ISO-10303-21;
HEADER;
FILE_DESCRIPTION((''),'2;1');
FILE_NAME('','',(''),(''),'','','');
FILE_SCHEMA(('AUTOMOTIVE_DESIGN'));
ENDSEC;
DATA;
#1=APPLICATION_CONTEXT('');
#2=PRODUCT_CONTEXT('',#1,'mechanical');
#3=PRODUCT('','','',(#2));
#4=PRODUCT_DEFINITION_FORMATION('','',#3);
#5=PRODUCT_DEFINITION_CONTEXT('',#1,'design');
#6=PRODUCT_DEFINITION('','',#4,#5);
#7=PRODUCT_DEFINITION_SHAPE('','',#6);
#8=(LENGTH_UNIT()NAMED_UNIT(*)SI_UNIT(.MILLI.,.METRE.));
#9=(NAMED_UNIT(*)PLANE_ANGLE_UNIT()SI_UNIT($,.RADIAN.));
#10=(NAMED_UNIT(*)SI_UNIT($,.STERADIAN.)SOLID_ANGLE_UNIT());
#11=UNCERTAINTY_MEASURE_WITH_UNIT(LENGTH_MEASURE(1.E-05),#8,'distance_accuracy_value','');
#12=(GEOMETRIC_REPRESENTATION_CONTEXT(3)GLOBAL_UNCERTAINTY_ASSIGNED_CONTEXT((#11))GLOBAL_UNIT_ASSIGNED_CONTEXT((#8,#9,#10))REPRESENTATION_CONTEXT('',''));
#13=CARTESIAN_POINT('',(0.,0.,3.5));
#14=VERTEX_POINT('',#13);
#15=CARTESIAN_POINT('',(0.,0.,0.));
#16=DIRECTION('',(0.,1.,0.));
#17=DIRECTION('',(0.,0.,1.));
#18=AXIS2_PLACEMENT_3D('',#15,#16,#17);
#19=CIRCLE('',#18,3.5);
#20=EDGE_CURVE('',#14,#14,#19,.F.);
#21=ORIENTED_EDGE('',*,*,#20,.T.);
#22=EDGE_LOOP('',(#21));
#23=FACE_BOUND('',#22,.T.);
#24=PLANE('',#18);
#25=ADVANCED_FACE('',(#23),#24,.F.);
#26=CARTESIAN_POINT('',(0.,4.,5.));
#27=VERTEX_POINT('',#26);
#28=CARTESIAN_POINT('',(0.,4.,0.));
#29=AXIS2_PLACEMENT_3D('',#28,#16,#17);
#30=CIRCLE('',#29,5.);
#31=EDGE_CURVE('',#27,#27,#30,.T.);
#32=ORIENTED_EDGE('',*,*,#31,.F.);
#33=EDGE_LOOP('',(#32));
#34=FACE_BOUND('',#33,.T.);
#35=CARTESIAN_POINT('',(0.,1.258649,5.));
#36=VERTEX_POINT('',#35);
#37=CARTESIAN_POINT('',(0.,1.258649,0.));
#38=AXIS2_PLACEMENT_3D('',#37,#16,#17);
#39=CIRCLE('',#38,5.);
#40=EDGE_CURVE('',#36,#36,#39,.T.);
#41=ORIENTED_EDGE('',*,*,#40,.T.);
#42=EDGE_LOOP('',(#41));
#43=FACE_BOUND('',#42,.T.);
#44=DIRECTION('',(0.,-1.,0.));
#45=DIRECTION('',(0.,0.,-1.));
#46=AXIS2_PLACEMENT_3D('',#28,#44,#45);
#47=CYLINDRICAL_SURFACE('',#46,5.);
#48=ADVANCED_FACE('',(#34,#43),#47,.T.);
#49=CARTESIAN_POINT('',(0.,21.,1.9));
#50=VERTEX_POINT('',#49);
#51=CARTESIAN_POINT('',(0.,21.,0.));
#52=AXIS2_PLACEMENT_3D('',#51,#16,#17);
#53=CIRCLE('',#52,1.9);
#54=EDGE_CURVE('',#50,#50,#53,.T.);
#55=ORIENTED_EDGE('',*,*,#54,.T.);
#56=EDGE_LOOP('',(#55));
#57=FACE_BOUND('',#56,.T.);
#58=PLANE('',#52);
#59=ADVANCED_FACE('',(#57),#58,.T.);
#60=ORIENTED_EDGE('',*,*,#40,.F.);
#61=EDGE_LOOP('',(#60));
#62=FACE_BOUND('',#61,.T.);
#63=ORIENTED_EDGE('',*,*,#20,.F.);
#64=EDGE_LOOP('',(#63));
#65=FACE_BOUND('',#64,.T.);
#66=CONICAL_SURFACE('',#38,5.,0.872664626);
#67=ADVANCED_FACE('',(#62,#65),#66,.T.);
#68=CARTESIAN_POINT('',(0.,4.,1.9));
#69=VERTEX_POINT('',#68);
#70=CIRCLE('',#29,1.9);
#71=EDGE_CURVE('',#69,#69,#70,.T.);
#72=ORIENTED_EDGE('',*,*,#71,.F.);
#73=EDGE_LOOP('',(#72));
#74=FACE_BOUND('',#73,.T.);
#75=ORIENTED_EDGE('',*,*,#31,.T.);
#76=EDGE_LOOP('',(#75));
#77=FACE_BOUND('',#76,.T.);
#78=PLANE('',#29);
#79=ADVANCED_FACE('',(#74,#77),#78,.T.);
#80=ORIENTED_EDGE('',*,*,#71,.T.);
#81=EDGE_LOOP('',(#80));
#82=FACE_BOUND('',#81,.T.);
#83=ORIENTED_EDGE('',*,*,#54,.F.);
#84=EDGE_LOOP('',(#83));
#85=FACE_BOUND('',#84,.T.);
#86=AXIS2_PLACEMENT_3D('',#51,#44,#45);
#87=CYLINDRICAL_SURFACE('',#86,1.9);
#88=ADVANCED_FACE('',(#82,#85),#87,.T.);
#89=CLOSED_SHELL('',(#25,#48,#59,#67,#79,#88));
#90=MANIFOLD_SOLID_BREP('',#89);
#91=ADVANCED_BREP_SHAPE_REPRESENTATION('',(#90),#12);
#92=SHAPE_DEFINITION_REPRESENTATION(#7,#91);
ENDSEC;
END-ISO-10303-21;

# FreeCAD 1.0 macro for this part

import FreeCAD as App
import Part
import Sketcher
Q = App.Units.Quantity


def edges_at(feature, points):
    """Names of the edges that pass closest to the given points."""
    edges = feature.Shape.Edges
    near = lambda p: min(range(len(edges)), key=lambda i: edges[i].distToShape(Part.Vertex(*p))[0])
    return sorted({f"Edge{near(p) + 1}" for p in points})

doc = App.newDocument("Part")
params = doc.addObject("Spreadsheet::Sheet", "Params")
for row, (alias, value) in enumerate([
    ("sketch1_diameter", "10 mm"),
    ("pad1_length", "4 mm"),
    ("sketch2_diameter", "3.8 mm"),
    ("pad2_length", "17 mm"),
    ("chamfer_size", "1.5 mm"),
    ("chamfer_size2", "1.258649 mm"),
], start=1):
    params.set(f"A{row}", alias)
    params.set(f"B{row}", "=" + value)
    params.setAlias(f"B{row}", alias)

body = doc.addObject("PartDesign::Body", "Body")

sketch1 = body.newObject("Sketcher::SketchObject", "Sketch")
sketch1.AttachmentSupport = (doc.getObject("XZ_Plane"), [""])
sketch1.MapMode = "FlatFace"
sketch1.addGeometry(Part.Circle(App.Vector(0, 0, 0), App.Vector(0, 0, 1), 5), False)
sketch1.addConstraint(Sketcher.Constraint("Coincident", 0, 3, -1, 1))
sketch1.addConstraint(Sketcher.Constraint("Diameter", 0, Q("10 mm")))
sketch1.setExpression("Constraints[1]", "Params.sketch1_diameter")
pad1 = body.newObject("PartDesign::Pad", "Pad")
pad1.Profile = sketch1
pad1.setExpression("Length", "Params.pad1_length")
pad1.Reversed = True

sketch2 = body.newObject("Sketcher::SketchObject", "Sketch001")
sketch2.AttachmentSupport = (doc.getObject("XZ_Plane"), [""])
sketch2.MapMode = "FlatFace"
sketch2.AttachmentOffset = App.Placement(App.Vector(0, 0, -4), App.Rotation())
sketch2.addGeometry(Part.Circle(App.Vector(0, 0, 0), App.Vector(0, 0, 1), 1.9), False)
sketch2.addConstraint(Sketcher.Constraint("Coincident", 0, 3, -1, 1))
sketch2.addConstraint(Sketcher.Constraint("Diameter", 0, Q("3.8 mm")))
sketch2.setExpression("Constraints[1]", "Params.sketch2_diameter")
pad2 = body.newObject("PartDesign::Pad", "Pad001")
pad2.Profile = sketch2
pad2.setExpression("Length", "Params.pad2_length")
pad2.Reversed = True
doc.recompute()

chamfer = body.newObject("PartDesign::Chamfer", "Chamfer")
chamfer.Base = (pad2, edges_at(pad2, [(0, 0, -5)]))
chamfer.ChamferType = "Two distances"
chamfer.setExpression("Size", "Params.chamfer_size")
chamfer.setExpression("Size2", "Params.chamfer_size2")
chamfer.FlipDirection = True

doc.recompute()
